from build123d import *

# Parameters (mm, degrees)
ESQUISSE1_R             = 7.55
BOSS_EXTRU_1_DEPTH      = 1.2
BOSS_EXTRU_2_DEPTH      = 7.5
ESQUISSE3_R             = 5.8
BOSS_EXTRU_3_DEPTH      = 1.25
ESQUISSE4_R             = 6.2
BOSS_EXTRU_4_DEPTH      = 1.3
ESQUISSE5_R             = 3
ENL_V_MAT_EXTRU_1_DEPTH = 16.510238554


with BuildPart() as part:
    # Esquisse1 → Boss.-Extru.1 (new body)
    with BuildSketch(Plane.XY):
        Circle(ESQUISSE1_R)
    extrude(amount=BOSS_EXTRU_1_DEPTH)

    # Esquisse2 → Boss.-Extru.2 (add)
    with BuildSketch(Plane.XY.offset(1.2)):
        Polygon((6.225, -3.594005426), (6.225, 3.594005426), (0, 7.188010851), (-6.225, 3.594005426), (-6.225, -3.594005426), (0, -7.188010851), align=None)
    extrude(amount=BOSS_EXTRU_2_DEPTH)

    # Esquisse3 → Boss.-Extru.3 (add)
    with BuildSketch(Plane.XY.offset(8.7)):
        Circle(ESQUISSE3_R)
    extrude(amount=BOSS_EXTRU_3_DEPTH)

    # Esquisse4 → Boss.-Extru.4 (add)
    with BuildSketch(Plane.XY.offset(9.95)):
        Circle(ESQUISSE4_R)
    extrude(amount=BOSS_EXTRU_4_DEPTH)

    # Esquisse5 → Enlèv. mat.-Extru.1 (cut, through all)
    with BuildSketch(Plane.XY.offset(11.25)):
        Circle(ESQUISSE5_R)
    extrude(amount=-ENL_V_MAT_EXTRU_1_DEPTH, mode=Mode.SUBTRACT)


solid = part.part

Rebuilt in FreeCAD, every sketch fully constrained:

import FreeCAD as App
import Part
import Sketcher

V = App.Vector
Q = App.Units.Quantity

doc = App.newDocument("Part")
params = doc.addObject("Spreadsheet::Sheet", "Params")
for row, (alias, value) in enumerate([
    ("sketch1_diameter", "15.1 mm"),
    ("pad1_length", "1.2 mm"),
    ("pad2_length", "7.5 mm"),
    ("sketch3_diameter", "11.6 mm"),
    ("pad3_length", "1.25 mm"),
    ("sketch4_diameter", "12.4 mm"),
    ("pad4_length", "1.3 mm"),
    ("sketch5_diameter", "6 mm"),
], start=1):
    params.set(f"A{row}", alias)
    params.set(f"B{row}", "=" + value)
    params.setAlias(f"B{row}", alias)

body = doc.addObject("PartDesign::Body", "Body")

# Sketch on XY plane
sketch1 = doc.addObject("Sketcher::SketchObject", "Sketch")
body.addObject(sketch1)
sketch1.AttachmentSupport = (doc.XY_Plane, [""])
sketch1.MapMode = "FlatFace"
sketch1.addGeometry(Part.Circle(V(0, 0, 0), V(0, 0, 1), 8), False)
sketch1.addConstraint(Sketcher.Constraint("Coincident", 0, 3, -1, 1))
sketch1.addConstraint(Sketcher.Constraint("Diameter", 0, 15.1))
sketch1.setExpression("Constraints[1]", "Params.sketch1_diameter")
pad1 = doc.addObject("PartDesign::Pad", "Pad")
body.addObject(pad1)
pad1.Profile = sketch1
pad1.setExpression("Length", "Params.pad1_length")

# Sketch on XY plane
sketch2 = doc.addObject("Sketcher::SketchObject", "Sketch001")
body.addObject(sketch2)
sketch2.AttachmentSupport = (doc.XY_Plane, [""])
sketch2.MapMode = "FlatFace"
sketch2.AttachmentOffset = App.Placement(V(0, 0, 1.2), App.Rotation())
sketch2.addGeometry(Part.LineSegment(V(6, -4, 0), V(6, 4, 0)), False)
sketch2.addGeometry(Part.LineSegment(V(6, 4, 0), V(0, 7, 0)), False)
sketch2.addGeometry(Part.LineSegment(V(0, 7, 0), V(-6, 4, 0)), False)
sketch2.addGeometry(Part.LineSegment(V(-6, 4, 0), V(-6, -4, 0)), False)
sketch2.addGeometry(Part.LineSegment(V(-6, -4, 0), V(0, -7, 0)), False)
sketch2.addGeometry(Part.LineSegment(V(0, -7, 0), V(6, -4, 0)), False)
sketch2.addConstraint(Sketcher.Constraint("Coincident", 0, 2, 1, 1))
sketch2.addConstraint(Sketcher.Constraint("Coincident", 1, 2, 2, 1))
sketch2.addConstraint(Sketcher.Constraint("Coincident", 2, 2, 3, 1))
sketch2.addConstraint(Sketcher.Constraint("Coincident", 3, 2, 4, 1))
sketch2.addConstraint(Sketcher.Constraint("Coincident", 4, 2, 5, 1))
sketch2.addConstraint(Sketcher.Constraint("Coincident", 5, 2, 0, 1))
sketch2.addConstraint(Sketcher.Constraint("Vertical", 0))
sketch2.addConstraint(Sketcher.Constraint("Vertical", 3))
sketch2.addConstraint(Sketcher.Constraint("Symmetric", 0, 2, 3, 2, -1, 1))
sketch2.addConstraint(Sketcher.Constraint("Symmetric", 1, 2, 4, 2, -1, 1))
sketch2.addConstraint(Sketcher.Constraint("PointOnObject", 1, 2, -2))
sketch2.addConstraint(Sketcher.Constraint("Parallel", 2, 5))
sketch2.addConstraint(Sketcher.Constraint("Horizontal", 0, 2, 2, 2))
sketch2.addConstraint(Sketcher.Constraint("Angle", 1, Q("150 deg")))
sketch2.addConstraint(Sketcher.Constraint("DistanceX", 2, 2, 0, 2, 12.45))
sketch2.addConstraint(Sketcher.Constraint("DistanceY", 0, 1, 0, 2, 7.188011))
pad2 = doc.addObject("PartDesign::Pad", "Pad001")
body.addObject(pad2)
pad2.Profile = sketch2
pad2.setExpression("Length", "Params.pad2_length")

# Sketch on XY plane
sketch3 = doc.addObject("Sketcher::SketchObject", "Sketch002")
body.addObject(sketch3)
sketch3.AttachmentSupport = (doc.XY_Plane, [""])
sketch3.MapMode = "FlatFace"
sketch3.AttachmentOffset = App.Placement(V(0, 0, 8.7), App.Rotation())
sketch3.addGeometry(Part.Circle(V(0, 0, 0), V(0, 0, 1), 6), False)
sketch3.addConstraint(Sketcher.Constraint("Coincident", 0, 3, -1, 1))
sketch3.addConstraint(Sketcher.Constraint("Diameter", 0, 11.6))
sketch3.setExpression("Constraints[1]", "Params.sketch3_diameter")
pad3 = doc.addObject("PartDesign::Pad", "Pad002")
body.addObject(pad3)
pad3.Profile = sketch3
pad3.setExpression("Length", "Params.pad3_length")

# Sketch on XY plane
sketch4 = doc.addObject("Sketcher::SketchObject", "Sketch003")
body.addObject(sketch4)
sketch4.AttachmentSupport = (doc.XY_Plane, [""])
sketch4.MapMode = "FlatFace"
sketch4.AttachmentOffset = App.Placement(V(0, 0, 9.95), App.Rotation())
sketch4.addGeometry(Part.Circle(V(0, 0, 0), V(0, 0, 1), 6), False)
sketch4.addConstraint(Sketcher.Constraint("Coincident", 0, 3, -1, 1))
sketch4.addConstraint(Sketcher.Constraint("Diameter", 0, 12.4))
sketch4.setExpression("Constraints[1]", "Params.sketch4_diameter")
pad4 = doc.addObject("PartDesign::Pad", "Pad003")
body.addObject(pad4)
pad4.Profile = sketch4
pad4.setExpression("Length", "Params.pad4_length")

# Sketch on XY plane
sketch5 = doc.addObject("Sketcher::SketchObject", "Sketch004")
body.addObject(sketch5)
sketch5.AttachmentSupport = (doc.XY_Plane, [""])
sketch5.MapMode = "FlatFace"
sketch5.AttachmentOffset = App.Placement(V(0, 0, 11.25), App.Rotation())
sketch5.addGeometry(Part.Circle(V(0, 0, 0), V(0, 0, 1), 3), False)
sketch5.addConstraint(Sketcher.Constraint("Coincident", 0, 3, -1, 1))
sketch5.addConstraint(Sketcher.Constraint("Diameter", 0, 6.0))
sketch5.setExpression("Constraints[1]", "Params.sketch5_diameter")
pocket1 = doc.addObject("PartDesign::Pocket", "Pocket")
body.addObject(pocket1)
pocket1.Profile = sketch5
pocket1.Type = "ThroughAll"

doc.recompute()
